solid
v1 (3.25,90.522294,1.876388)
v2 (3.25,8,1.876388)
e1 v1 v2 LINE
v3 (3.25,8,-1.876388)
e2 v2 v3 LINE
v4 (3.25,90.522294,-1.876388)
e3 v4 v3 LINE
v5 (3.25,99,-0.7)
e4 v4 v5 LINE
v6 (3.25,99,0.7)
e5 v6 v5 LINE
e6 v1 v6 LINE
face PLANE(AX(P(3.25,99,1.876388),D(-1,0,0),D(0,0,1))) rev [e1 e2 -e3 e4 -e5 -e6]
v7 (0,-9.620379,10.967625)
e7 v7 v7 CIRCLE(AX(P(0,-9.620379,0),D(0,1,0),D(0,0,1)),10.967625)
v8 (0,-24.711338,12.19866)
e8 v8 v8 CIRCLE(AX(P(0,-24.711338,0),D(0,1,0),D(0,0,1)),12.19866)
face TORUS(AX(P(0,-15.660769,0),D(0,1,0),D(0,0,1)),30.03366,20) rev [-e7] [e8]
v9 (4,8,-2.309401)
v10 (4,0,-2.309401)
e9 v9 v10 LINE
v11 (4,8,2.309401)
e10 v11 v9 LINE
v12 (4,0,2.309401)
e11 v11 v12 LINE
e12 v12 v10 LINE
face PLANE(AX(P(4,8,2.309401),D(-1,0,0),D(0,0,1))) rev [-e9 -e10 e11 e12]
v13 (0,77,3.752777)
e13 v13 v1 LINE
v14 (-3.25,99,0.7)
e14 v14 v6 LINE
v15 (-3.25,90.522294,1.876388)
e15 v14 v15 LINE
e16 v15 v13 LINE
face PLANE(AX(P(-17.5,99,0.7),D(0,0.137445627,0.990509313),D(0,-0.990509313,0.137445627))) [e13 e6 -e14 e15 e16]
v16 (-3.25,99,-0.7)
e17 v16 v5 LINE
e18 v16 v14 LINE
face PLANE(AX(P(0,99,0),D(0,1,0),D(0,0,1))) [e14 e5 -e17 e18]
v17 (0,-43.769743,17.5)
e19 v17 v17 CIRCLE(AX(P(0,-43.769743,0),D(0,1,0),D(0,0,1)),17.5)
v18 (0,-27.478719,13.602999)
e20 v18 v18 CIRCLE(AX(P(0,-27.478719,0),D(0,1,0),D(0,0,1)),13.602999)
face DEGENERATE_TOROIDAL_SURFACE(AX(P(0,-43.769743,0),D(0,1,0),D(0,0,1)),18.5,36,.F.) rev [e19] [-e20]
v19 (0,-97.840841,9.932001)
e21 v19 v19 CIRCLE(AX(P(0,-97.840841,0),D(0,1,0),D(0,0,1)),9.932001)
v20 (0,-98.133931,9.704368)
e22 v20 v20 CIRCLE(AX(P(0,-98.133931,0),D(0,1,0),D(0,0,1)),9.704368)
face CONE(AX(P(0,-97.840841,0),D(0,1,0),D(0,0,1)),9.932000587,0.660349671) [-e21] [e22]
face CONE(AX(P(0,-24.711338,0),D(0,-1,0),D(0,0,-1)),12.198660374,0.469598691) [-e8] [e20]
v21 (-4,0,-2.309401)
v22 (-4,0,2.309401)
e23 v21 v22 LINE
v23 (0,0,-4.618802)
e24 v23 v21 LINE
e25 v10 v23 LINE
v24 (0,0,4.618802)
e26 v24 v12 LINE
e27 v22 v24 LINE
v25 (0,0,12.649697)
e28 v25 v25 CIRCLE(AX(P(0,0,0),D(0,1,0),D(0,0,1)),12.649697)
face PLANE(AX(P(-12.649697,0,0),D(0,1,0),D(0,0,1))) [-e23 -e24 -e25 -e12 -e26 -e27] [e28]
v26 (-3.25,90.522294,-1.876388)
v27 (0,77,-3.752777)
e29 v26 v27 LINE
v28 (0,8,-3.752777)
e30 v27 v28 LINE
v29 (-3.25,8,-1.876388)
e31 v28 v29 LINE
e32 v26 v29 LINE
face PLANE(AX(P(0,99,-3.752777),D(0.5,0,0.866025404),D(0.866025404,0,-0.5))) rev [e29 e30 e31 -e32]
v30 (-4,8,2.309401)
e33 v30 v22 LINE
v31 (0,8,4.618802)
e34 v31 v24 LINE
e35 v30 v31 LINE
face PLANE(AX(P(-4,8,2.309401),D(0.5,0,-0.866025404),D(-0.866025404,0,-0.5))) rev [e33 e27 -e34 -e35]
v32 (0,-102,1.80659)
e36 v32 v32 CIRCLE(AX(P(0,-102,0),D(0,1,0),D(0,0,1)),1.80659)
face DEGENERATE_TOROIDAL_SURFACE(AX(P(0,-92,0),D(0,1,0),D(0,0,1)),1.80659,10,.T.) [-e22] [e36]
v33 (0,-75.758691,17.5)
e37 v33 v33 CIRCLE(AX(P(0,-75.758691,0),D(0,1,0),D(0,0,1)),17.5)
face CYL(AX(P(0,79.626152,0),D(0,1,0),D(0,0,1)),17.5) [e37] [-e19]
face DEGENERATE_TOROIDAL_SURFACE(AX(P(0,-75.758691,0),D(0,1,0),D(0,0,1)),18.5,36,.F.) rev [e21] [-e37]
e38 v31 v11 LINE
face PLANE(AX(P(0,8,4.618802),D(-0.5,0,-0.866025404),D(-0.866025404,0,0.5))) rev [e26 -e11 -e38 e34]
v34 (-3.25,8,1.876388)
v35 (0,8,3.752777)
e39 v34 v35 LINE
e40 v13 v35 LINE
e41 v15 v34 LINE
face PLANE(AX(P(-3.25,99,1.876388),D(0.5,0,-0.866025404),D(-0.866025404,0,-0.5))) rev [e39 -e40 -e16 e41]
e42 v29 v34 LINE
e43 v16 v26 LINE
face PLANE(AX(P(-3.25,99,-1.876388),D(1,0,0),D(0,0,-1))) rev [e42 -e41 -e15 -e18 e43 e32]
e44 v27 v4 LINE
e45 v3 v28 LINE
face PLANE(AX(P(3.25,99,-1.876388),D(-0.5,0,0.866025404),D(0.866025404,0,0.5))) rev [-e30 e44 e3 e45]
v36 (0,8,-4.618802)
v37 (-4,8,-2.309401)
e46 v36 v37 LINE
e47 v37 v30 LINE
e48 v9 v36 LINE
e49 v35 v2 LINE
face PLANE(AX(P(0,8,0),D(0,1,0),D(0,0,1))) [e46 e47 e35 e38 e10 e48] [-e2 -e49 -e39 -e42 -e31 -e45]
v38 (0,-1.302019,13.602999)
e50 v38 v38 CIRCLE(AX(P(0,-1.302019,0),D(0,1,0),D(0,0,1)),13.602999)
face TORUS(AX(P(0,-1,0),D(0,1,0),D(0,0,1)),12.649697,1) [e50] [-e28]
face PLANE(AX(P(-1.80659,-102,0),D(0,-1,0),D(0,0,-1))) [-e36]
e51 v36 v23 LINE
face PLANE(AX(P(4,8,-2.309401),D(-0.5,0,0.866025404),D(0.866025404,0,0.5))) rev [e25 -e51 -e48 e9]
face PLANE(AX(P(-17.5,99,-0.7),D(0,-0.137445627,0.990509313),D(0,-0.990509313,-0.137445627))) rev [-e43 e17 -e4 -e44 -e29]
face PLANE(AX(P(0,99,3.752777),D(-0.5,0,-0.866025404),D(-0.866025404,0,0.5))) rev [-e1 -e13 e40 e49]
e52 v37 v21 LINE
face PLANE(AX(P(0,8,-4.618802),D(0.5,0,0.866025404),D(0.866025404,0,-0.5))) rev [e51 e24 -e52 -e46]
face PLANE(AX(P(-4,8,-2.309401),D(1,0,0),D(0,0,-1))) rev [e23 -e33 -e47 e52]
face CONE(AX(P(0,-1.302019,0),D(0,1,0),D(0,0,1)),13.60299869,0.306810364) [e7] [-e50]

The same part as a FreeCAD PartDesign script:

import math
import FreeCAD as App
import Part
import Sketcher

V = App.Vector
Q = App.Units.Quantity

doc = App.newDocument("Part")
body = doc.addObject("PartDesign::Body", "Body")

sketch1 = body.newObject("Sketcher::SketchObject", "Sketch")
sketch1.AttachmentSupport = (doc.getObject("XY_Plane"), [""])
sketch1.MapMode = "FlatFace"
sketch1.addGeometry([
    Part.LineSegment(V(-9.932001, -97.840841, 0), V(-9.704368, -98.133931, 0)),
    Part.ArcOfCircle(Part.Circle(V(-1.80659, -92, 0), V(0, 0, 1), 10), math.radians(-142.164751), math.radians(-90)),
    Part.LineSegment(V(-1.80659, -102, 0), V(0, -102, 0)),
    Part.LineSegment(V(0, -102, 0), V(0, 0, 0)),
    Part.LineSegment(V(0, 0, 0), V(-12.649697, 0, 0)),
    Part.ArcOfCircle(Part.Circle(V(-12.649697, -1, 0), V(0, 0, 1), 1), math.radians(90), math.radians(197.578939)),
    Part.LineSegment(V(-13.602999, -1.302019, 0), V(-10.967625, -9.620379, 0)),
    Part.ArcOfCircle(Part.Circle(V(-30.03366, -15.660769, 0), V(0, 0, 1), 20), math.radians(-26.906023), math.radians(17.578939)),
    Part.LineSegment(V(-12.19866, -24.711338, 0), V(-13.602999, -27.478719, 0)),
    Part.ArcOfCircle(Part.Circle(V(18.5, -43.769743, 0), V(0, 0, 1), 36), math.radians(153.093977), math.radians(180)),
    Part.LineSegment(V(-17.5, -43.769743, 0), V(-17.5, -75.758691, 0)),
    Part.ArcOfCircle(Part.Circle(V(18.5, -75.758691, 0), V(0, 0, 1), 36), math.radians(-180), math.radians(-142.164751)),
], False)
sketch1.addConstraint([
    Sketcher.Constraint("Coincident", 0, 2, 1, 1),
    Sketcher.Constraint("Coincident", 1, 2, 2, 1),
    Sketcher.Constraint("Coincident", 2, 2, 3, 1),
    Sketcher.Constraint("Coincident", 3, 2, 4, 1),
    Sketcher.Constraint("Coincident", 4, 2, 5, 1),
    Sketcher.Constraint("Coincident", 5, 2, 6, 1),
    Sketcher.Constraint("Coincident", 6, 2, 7, 2),
    Sketcher.Constraint("Coincident", 7, 1, 8, 1),
    Sketcher.Constraint("Coincident", 8, 2, 9, 1),
    Sketcher.Constraint("Coincident", 9, 2, 10, 1),
    Sketcher.Constraint("Coincident", 10, 2, 11, 1),
    Sketcher.Constraint("Coincident", 11, 2, 0, 1),
    Sketcher.Constraint("Horizontal", 2),
    Sketcher.Constraint("Vertical", 3),
    Sketcher.Constraint("Horizontal", 4),
    Sketcher.Constraint("Vertical", 10),
    Sketcher.Constraint("Coincident", 3, 2, -1, 1),
    Sketcher.Constraint("Radius", 1, 10.0),
    Sketcher.Constraint("Radius", 5, 1.0),
    Sketcher.Constraint("Radius", 7, 20.0),
    Sketcher.Constraint("Radius", 9, 36.0),
    Sketcher.Constraint("Radius", 11, 36.0),
    Sketcher.Constraint("DistanceY", 3, 1, 3, 2, 102.0),
    Sketcher.Constraint("DistanceX", -1, 1, 9, 3, 18.5),
    Sketcher.Constraint("DistanceX", 5, 2, -1, 1, 13.602999),
    Sketcher.Constraint("DistanceX", 8, 2, -1, 1, 13.602999),
    Sketcher.Constraint("DistanceX", 11, 2, -1, 1, 9.932001),
    Sketcher.Constraint("DistanceX", 7, 3, 7, 1, 17.834999),
    Sketcher.Constraint("DistanceX", 2, 1, 2, 2, 1.80659),
    Sketcher.Constraint("DistanceY", 10, 2, 10, 1, 31.988948),
    Sketcher.Constraint("DistanceX", 5, 2, 5, 3, 0.953302),
    Sketcher.Constraint("DistanceX", 5, 2, 4, 2, 0.953302),
    Sketcher.Constraint("DistanceY", 8, 2, 5, 2, 26.176699),
    Sketcher.Constraint("Distance", 6, 8.725841),
    Sketcher.Constraint("DistanceX", 1, 3, -1, 1, 1.80659),
    Sketcher.Constraint("DistanceX", 7, 3, -1, 1, 30.03366),
    Sketcher.Constraint("DistanceY", 7, 3, -1, 1, 15.660769),
    Sketcher.Constraint("DistanceY", 11, 3, -1, 1, 75.758691),
    Sketcher.Constraint("DistanceX", 0, 2, -1, 1, 9.704368),
    Sketcher.Constraint("DistanceY", 10, 2, -1, 1, 75.758691),
])
revolution = body.newObject("PartDesign::Revolution", "Revolution")
revolution.Profile = sketch1
revolution.ReferenceAxis = (sketch1, ["V_Axis"])
revolution.Angle = 360

sketch2 = body.newObject("Sketcher::SketchObject", "Sketch001")
sketch2.AttachmentSupport = (doc.getObject("XZ_Plane"), [""])
sketch2.MapMode = "FlatFace"
sketch2.addGeometry([
    Part.LineSegment(V(-4, 2.309401, 0), V(0, 4.618802, 0)),
    Part.LineSegment(V(0, 4.618802, 0), V(4, 2.309401, 0)),
    Part.LineSegment(V(4, 2.309401, 0), V(4, -2.309401, 0)),
    Part.LineSegment(V(4, -2.309401, 0), V(0, -4.618802, 0)),
    Part.LineSegment(V(0, -4.618802, 0), V(-4, -2.309401, 0)),
    Part.LineSegment(V(-4, -2.309401, 0), V(-4, 2.309401, 0)),
], False)
sketch2.addConstraint([
    Sketcher.Constraint("Coincident", 0, 2, 1, 1),
    Sketcher.Constraint("Coincident", 1, 2, 2, 1),
    Sketcher.Constraint("Coincident", 2, 2, 3, 1),
    Sketcher.Constraint("Coincident", 3, 2, 4, 1),
    Sketcher.Constraint("Coincident", 4, 2, 5, 1),
    Sketcher.Constraint("Coincident", 5, 2, 0, 1),
    Sketcher.Constraint("Vertical", 2),
    Sketcher.Constraint("Vertical", 5),
    Sketcher.Constraint("Symmetric", 0, 2, 3, 2, -1, 1),
    Sketcher.Constraint("Symmetric", 1, 2, 4, 2, -1, 1),
    Sketcher.Constraint("PointOnObject", 0, 2, -2),
    Sketcher.Constraint("Parallel", 0, 3),
    Sketcher.Constraint("Horizontal", 2, 2, 4, 2),
    Sketcher.Constraint("Angle", 0, Q("30 deg")),
    Sketcher.Constraint("DistanceX", -1, 1, 1, 2, 4.0),
    Sketcher.Constraint("DistanceY", -1, 1, 1, 2, 2.309401),
])
pad1 = body.newObject("PartDesign::Pad", "Pad")
pad1.Profile = sketch2
pad1.Length = 8
pad1.Reversed = True

sketch3 = body.newObject("Sketcher::SketchObject", "Sketch002")
sketch3.AttachmentSupport = (doc.getObject("XZ_Plane"), [""])
sketch3.MapMode = "FlatFace"
sketch3.AttachmentOffset = App.Placement(V(0, 0, -8), App.Rotation())
sketch3.addGeometry([
    Part.LineSegment(V(-3.25, 1.876388, 0), V(0, 3.752777, 0)),
    Part.LineSegment(V(0, 3.752777, 0), V(3.25, 1.876388, 0)),
    Part.LineSegment(V(3.25, 1.876388, 0), V(3.25, -1.876388, 0)),
    Part.LineSegment(V(3.25, -1.876388, 0), V(0, -3.752777, 0)),
    Part.LineSegment(V(0, -3.752777, 0), V(-3.25, -1.876388, 0)),
    Part.LineSegment(V(-3.25, -1.876388, 0), V(-3.25, 1.876388, 0)),
], False)
sketch3.addConstraint([
    Sketcher.Constraint("Coincident", 0, 2, 1, 1),
    Sketcher.Constraint("Coincident", 1, 2, 2, 1),
    Sketcher.Constraint("Coincident", 2, 2, 3, 1),
    Sketcher.Constraint("Coincident", 3, 2, 4, 1),
    Sketcher.Constraint("Coincident", 4, 2, 5, 1),
    Sketcher.Constraint("Coincident", 5, 2, 0, 1),
    Sketcher.Constraint("Vertical", 2),
    Sketcher.Constraint("Vertical", 5),
    Sketcher.Constraint("Symmetric", 0, 2, 3, 2, -1, 1),
    Sketcher.Constraint("Symmetric", 1, 2, 4, 2, -1, 1),
    Sketcher.Constraint("PointOnObject", 0, 2, -2),
    Sketcher.Constraint("Parallel", 0, 3),
    Sketcher.Constraint("Horizontal", 2, 2, 4, 2),
    Sketcher.Constraint("Angle", 0, Q("30 deg")),
    Sketcher.Constraint("DistanceX", 4, 2, 2, 2, 6.5),
    Sketcher.Constraint("DistanceY", 2, 2, 2, 1, 3.752777),
])
pad2 = body.newObject("PartDesign::Pad", "Pad001")
pad2.Profile = sketch3
pad2.Length = 91
pad2.Reversed = True

sketch4 = body.newObject("Sketcher::SketchObject", "Sketch003")
sketch4.AttachmentSupport = (doc.getObject("YZ_Plane"), [""])
sketch4.MapMode = "FlatFace"
sketch4.addGeometry([
    Part.LineSegment(V(77, 3.752777, 0), V(99, 0.7, 0)),
    Part.LineSegment(V(99, 0.7, 0), V(99, 3.752777, 0)),
    Part.LineSegment(V(99, 3.752777, 0), V(77, 3.752777, 0)),
    Part.LineSegment(V(99, -0.7, 0), V(77, -3.752777, 0)),
    Part.LineSegment(V(77, -3.752777, 0), V(99, -3.752777, 0)),
    Part.LineSegment(V(99, -3.752777, 0), V(99, -0.7, 0)),
], False)
sketch4.addConstraint([
    Sketcher.Constraint("Coincident", 0, 2, 1, 1),
    Sketcher.Constraint("Coincident", 1, 2, 2, 1),
    Sketcher.Constraint("Coincident", 2, 2, 0, 1),
    Sketcher.Constraint("Coincident", 3, 2, 4, 1),
    Sketcher.Constraint("Coincident", 4, 2, 5, 1),
    Sketcher.Constraint("Coincident", 5, 2, 3, 1),
    Sketcher.Constraint("Vertical", 1),
    Sketcher.Constraint("Horizontal", 2),
    Sketcher.Constraint("Horizontal", 4),
    Sketcher.Constraint("Vertical", 5),
    Sketcher.Constraint("Symmetric", 2, 2, 3, 2, -1),
    Sketcher.Constraint("Symmetric", 0, 2, 5, 2, -1),
    Sketcher.Constraint("DistanceX", 2, 2, 2, 1, 22.0),
    Sketcher.Constraint("DistanceX", -1, 1, 0, 2, 99.0),
    Sketcher.Constraint("DistanceY", -1, 1, 0, 2, 0.7),
    Sketcher.Constraint("DistanceY", 1, 1, 1, 2, 3.052777),
])
pocket1 = body.newObject("PartDesign::Pocket", "Pocket")
pocket1.Profile = sketch4
pocket1.Type = "ThroughAll"
pocket1.Midplane = True

doc.recompute()
